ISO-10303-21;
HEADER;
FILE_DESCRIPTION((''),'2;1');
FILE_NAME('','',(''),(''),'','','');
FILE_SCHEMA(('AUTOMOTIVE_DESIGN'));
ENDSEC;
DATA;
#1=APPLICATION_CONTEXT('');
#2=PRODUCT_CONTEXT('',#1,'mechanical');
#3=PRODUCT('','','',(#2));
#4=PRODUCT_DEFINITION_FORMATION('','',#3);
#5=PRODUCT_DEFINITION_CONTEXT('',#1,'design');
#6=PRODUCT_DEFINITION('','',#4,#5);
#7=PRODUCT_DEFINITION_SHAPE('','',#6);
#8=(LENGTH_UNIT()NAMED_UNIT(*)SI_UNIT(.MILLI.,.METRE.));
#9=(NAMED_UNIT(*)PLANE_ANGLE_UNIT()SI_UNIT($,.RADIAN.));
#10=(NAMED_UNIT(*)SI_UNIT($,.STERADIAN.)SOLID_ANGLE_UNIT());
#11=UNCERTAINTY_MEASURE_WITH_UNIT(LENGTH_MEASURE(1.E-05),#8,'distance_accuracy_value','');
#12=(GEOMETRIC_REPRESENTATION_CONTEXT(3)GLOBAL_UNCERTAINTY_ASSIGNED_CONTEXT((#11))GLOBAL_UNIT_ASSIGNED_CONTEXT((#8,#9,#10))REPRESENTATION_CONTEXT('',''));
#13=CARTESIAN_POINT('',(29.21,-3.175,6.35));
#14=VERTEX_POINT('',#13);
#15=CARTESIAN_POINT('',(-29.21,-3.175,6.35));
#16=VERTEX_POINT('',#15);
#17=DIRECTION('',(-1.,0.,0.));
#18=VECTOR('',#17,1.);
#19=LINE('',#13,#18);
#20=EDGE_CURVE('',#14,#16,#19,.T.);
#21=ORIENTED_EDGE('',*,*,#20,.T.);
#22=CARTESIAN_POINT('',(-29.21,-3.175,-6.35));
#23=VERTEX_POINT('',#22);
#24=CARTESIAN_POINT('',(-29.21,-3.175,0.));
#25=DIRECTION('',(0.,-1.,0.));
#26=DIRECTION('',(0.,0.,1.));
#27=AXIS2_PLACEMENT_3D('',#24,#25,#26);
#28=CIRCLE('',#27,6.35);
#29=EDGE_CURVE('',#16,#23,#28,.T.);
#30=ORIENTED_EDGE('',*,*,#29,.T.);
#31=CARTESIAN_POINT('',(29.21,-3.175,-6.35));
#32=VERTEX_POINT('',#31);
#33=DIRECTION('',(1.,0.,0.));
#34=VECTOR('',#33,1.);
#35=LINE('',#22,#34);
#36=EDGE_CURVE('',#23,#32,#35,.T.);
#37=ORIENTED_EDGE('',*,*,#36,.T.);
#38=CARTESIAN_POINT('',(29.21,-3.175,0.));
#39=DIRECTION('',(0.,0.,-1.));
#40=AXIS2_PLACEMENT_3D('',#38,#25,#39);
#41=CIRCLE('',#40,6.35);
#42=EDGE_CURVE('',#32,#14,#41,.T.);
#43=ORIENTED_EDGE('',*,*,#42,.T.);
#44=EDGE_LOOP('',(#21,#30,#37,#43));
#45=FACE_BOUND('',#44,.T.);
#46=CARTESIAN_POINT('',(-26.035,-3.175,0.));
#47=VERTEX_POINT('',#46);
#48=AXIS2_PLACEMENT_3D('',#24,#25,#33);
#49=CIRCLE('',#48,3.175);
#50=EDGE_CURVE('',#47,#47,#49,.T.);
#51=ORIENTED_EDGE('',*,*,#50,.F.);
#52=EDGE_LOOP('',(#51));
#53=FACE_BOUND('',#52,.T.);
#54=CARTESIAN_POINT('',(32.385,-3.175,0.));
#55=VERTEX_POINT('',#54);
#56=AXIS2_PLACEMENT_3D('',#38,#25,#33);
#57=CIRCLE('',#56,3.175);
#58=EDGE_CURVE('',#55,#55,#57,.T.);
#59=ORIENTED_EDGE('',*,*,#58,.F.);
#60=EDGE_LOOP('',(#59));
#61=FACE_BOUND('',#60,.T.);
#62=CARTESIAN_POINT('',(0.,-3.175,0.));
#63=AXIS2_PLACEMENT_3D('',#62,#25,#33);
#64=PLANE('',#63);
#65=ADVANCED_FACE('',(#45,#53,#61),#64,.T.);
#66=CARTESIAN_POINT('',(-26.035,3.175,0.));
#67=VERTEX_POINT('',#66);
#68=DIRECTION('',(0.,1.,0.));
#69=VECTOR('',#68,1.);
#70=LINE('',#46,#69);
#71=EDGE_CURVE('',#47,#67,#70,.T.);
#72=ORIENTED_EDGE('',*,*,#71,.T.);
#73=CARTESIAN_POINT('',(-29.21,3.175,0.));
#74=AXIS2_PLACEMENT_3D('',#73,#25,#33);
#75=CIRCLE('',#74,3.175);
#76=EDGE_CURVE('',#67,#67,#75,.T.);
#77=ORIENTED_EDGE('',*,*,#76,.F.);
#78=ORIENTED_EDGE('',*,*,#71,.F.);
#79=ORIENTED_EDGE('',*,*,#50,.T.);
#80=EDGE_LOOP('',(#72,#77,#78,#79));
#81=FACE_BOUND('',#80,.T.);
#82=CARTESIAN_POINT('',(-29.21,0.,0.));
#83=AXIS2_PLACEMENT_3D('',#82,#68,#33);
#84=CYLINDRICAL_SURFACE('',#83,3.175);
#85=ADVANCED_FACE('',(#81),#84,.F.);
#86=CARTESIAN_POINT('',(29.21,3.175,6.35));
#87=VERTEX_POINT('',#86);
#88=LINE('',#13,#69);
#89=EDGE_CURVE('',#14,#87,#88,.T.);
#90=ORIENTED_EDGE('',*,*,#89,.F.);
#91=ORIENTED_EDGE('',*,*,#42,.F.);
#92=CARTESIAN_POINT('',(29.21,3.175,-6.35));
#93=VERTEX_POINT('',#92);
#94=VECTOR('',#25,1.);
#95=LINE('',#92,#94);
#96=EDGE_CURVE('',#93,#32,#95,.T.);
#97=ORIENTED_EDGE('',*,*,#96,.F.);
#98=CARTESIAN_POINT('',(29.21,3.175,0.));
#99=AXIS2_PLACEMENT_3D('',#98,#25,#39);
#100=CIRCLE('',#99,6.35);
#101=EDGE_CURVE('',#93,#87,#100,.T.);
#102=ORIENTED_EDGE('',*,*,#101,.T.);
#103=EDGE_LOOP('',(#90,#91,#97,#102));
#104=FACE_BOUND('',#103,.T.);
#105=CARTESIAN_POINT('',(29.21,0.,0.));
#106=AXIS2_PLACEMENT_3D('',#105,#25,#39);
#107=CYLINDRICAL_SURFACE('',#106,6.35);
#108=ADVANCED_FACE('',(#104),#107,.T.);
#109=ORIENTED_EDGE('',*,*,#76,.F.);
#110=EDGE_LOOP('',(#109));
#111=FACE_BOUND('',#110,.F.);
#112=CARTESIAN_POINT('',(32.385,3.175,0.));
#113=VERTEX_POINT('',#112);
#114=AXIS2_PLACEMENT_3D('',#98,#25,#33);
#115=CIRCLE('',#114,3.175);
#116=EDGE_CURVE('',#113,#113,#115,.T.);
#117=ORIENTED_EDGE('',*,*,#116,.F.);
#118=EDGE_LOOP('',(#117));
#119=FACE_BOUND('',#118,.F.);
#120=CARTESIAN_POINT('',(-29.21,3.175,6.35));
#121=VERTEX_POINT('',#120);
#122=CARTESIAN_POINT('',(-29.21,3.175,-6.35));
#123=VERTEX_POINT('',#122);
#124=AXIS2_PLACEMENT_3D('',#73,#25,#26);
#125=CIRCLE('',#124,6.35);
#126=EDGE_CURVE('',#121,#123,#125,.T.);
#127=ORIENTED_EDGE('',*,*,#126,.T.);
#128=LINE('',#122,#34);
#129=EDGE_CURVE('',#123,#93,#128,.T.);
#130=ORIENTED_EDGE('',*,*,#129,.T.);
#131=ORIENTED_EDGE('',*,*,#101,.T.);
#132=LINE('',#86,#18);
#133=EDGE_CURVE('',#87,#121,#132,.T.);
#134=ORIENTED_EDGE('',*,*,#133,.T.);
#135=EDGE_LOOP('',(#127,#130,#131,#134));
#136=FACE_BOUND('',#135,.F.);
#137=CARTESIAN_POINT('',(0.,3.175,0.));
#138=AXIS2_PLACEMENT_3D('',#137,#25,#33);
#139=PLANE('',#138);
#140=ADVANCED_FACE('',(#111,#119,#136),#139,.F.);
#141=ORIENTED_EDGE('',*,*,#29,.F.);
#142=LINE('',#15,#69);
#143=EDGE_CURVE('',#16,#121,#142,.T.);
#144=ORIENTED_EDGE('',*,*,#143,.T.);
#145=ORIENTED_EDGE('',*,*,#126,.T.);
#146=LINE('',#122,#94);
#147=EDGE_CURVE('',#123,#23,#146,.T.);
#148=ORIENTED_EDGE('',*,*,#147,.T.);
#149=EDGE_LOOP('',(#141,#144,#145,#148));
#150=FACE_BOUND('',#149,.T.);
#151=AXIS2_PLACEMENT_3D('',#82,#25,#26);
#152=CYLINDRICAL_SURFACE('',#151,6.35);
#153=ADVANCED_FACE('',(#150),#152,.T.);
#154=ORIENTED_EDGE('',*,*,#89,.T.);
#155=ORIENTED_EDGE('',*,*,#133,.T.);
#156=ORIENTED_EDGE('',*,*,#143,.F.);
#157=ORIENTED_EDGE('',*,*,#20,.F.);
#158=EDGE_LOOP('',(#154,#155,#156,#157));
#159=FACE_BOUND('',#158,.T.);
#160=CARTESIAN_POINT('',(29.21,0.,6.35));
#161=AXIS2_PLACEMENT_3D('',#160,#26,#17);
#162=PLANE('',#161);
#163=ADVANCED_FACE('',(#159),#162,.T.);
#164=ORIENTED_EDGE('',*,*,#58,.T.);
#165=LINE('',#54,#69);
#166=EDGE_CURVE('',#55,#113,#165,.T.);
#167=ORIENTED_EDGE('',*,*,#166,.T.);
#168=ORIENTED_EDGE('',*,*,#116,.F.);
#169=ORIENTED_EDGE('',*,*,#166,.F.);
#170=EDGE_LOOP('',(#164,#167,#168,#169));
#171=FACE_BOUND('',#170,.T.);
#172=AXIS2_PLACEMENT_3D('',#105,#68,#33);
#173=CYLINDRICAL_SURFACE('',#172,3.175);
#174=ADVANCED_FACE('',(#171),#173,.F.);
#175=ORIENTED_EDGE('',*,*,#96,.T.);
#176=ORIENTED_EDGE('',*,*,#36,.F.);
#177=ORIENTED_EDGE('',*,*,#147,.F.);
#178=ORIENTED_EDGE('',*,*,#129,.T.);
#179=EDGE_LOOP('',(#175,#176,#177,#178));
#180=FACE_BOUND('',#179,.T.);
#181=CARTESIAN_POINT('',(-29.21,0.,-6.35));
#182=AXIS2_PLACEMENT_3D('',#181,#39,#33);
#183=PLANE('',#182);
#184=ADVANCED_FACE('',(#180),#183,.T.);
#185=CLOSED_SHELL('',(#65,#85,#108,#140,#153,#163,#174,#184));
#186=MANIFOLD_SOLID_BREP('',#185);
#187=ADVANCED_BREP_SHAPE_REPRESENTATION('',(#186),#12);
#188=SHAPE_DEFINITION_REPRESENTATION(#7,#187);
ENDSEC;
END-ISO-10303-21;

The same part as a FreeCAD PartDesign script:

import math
import FreeCAD as App
import Part
import Sketcher
Q = App.Units.Quantity

doc = App.newDocument("Part")
params = doc.addObject("Spreadsheet::Sheet", "Params")
for row, (alias, value) in enumerate([
    ("sketch1_diameter", "0.25 in"),
    ("sketch1_radius", "0.25 in"),
    ("sketch1_width", "2.3 in"),
    ("pad1_length", "0.25 in"),
], start=1):
    params.set(f"A{row}", alias)
    params.set(f"B{row}", "=" + value)
    params.setAlias(f"B{row}", alias)

body = doc.addObject("PartDesign::Body", "Body")

# Sketch on XZ plane
sketch1 = body.newObject("Sketcher::SketchObject", "Sketch")
sketch1.AttachmentSupport = (doc.getObject("XZ_Plane"), [""])
sketch1.MapMode = "FlatFace"
sketch1.addGeometry(Part.ArcOfCircle(Part.Circle(App.Vector(-29.2, 0, 0), App.Vector(0, 0, 1), 6.3), math.radians(90), math.radians(270)), False)
sketch1.addGeometry(Part.LineSegment(App.Vector(-29.2, -6.3, 0), App.Vector(29.2, -6.3, 0)), False)
sketch1.addGeometry(Part.ArcOfCircle(Part.Circle(App.Vector(29.2, 0, 0), App.Vector(0, 0, 1), 6.3), math.radians(-90), math.radians(90)), False)
sketch1.addGeometry(Part.LineSegment(App.Vector(29.2, 6.3, 0), App.Vector(-29.2, 6.3, 0)), False)
sketch1.addGeometry(Part.Circle(App.Vector(-29.2, 0, 0), App.Vector(0, 0, 1), 3.2), False)
sketch1.addGeometry(Part.Circle(App.Vector(29.2, 0, 0), App.Vector(0, 0, 1), 3.2), False)
sketch1.addConstraint(Sketcher.Constraint("Tangent", 0, 2, 1, 1))
sketch1.addConstraint(Sketcher.Constraint("Tangent", 1, 2, 2, 1))
sketch1.addConstraint(Sketcher.Constraint("Tangent", 2, 2, 3, 1))
sketch1.addConstraint(Sketcher.Constraint("Tangent", 3, 2, 0, 1))
sketch1.addConstraint(Sketcher.Constraint("Horizontal", 1))
sketch1.addConstraint(Sketcher.Constraint("Horizontal", 3))
sketch1.addConstraint(Sketcher.Constraint("Coincident", 4, 3, 0, 3))
sketch1.addConstraint(Sketcher.Constraint("Coincident", 5, 3, 2, 3))
sketch1.addConstraint(Sketcher.Constraint("Equal", 4, 5))
sketch1.addConstraint(Sketcher.Constraint("Symmetric", 0, 3, 2, 3, -1, 1))
sketch1.addConstraint(Sketcher.Constraint("Diameter", 4, Q("0.25 in")))
sketch1.addConstraint(Sketcher.Constraint("Radius", 0, Q("0.25 in")))
sketch1.addConstraint(Sketcher.Constraint("DistanceX", 1, 1, 1, 2, Q("2.3 in")))
sketch1.setExpression("Constraints[10]", "Params.sketch1_diameter")
sketch1.setExpression("Constraints[11]", "Params.sketch1_radius")
sketch1.setExpression("Constraints[12]", "Params.sketch1_width")
pad1 = body.newObject("PartDesign::Pad", "Pad")
pad1.Profile = sketch1
pad1.setExpression("Length", "Params.pad1_length")
pad1.Midplane = True

doc.recompute()
